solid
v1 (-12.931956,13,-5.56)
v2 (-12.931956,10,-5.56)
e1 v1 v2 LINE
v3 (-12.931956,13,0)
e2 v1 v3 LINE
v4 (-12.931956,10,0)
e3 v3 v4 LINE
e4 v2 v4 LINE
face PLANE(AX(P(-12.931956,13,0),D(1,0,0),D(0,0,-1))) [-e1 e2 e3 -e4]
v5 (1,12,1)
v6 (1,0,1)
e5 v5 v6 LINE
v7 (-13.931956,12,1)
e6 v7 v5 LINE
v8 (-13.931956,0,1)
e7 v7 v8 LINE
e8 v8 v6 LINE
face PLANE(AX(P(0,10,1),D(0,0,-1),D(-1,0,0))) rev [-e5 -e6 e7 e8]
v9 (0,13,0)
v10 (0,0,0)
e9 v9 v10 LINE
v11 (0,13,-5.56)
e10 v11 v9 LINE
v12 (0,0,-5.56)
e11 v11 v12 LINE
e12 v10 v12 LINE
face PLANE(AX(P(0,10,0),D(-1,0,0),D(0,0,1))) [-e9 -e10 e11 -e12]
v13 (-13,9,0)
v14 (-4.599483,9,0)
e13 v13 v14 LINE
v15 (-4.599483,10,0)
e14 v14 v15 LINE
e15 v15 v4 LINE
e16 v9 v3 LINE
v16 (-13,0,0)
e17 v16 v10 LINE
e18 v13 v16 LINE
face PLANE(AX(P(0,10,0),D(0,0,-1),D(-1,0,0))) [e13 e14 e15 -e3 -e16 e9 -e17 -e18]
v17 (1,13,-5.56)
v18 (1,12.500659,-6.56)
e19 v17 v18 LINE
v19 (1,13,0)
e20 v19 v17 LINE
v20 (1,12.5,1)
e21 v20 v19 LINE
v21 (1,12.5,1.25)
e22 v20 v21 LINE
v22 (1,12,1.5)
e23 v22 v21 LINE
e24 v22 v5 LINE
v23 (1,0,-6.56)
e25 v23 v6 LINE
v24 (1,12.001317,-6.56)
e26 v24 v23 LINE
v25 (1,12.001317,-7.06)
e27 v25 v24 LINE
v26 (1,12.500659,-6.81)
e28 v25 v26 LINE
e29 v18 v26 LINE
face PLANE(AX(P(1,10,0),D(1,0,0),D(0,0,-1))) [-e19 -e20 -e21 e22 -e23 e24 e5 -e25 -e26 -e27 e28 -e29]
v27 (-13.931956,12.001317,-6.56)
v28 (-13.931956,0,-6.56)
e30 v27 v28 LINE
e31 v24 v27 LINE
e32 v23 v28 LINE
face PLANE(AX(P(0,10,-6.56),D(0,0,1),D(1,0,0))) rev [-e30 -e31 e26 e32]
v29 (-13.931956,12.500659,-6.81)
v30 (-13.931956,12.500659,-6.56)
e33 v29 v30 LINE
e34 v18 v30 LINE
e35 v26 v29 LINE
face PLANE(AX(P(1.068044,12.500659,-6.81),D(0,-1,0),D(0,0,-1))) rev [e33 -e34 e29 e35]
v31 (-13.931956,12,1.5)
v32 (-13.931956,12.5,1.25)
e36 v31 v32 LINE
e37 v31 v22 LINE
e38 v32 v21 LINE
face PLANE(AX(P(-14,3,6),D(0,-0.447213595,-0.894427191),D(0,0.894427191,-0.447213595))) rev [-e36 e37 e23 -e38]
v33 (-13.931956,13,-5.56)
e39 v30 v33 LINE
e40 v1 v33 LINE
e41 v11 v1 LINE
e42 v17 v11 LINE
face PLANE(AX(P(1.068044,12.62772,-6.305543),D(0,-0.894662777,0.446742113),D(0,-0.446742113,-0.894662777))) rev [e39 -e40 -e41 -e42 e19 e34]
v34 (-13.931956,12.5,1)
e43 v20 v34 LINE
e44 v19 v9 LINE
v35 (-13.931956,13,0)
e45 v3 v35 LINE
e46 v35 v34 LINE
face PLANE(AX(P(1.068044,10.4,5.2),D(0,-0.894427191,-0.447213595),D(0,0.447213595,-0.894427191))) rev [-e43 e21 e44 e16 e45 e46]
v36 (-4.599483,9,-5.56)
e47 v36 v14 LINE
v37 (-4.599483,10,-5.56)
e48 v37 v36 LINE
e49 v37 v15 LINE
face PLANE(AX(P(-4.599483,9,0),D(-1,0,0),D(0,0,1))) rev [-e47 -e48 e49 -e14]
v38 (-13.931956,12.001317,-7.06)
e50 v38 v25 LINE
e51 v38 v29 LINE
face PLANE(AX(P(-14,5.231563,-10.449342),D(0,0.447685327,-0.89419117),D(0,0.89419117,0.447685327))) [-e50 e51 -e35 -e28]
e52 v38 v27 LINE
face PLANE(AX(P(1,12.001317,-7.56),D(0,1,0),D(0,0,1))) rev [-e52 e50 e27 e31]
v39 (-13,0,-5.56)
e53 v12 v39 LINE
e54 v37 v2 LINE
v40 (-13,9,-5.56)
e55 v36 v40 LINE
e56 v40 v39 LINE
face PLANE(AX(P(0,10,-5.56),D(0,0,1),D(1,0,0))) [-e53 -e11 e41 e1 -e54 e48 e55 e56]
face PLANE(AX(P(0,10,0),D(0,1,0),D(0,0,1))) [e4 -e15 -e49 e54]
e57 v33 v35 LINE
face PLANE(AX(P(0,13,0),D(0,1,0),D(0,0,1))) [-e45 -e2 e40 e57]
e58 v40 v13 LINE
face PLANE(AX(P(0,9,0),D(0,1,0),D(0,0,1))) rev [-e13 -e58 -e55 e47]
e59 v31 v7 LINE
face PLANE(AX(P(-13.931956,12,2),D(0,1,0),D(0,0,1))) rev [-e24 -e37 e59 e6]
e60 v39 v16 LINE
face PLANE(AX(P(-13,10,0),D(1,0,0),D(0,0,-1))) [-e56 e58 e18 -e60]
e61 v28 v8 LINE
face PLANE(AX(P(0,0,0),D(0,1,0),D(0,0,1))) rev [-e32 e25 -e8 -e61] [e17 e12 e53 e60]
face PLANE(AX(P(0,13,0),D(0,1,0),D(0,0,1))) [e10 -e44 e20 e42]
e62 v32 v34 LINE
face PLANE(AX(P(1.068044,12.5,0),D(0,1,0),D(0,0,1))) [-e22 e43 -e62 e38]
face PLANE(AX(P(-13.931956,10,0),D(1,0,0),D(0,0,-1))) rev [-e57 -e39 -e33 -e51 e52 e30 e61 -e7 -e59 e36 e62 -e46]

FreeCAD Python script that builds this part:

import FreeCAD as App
import Part
import Sketcher
Q = App.Units.Quantity

doc = App.newDocument("Part")
params = doc.addObject("Spreadsheet::Sheet", "Params")
for row, (alias, value) in enumerate([
    ("sketch1_width", "13 mm"),
    ("sketch1_height", "7.56 mm"),
    ("pad1_length", "10 mm"),
    ("sketch2_height", "7.56 mm"),
    ("pad2_length", "1 mm"),
    ("sketch3_height", "7.56 mm"),
    ("pad3_length", "3 mm"),
    ("sketch4_height", "1 mm"),
    ("pad4_length", "1 mm"),
    ("pad5_length", "1 mm"),
    ("sketch6_width", "1 mm"),
    ("pocket1_length", "15 mm"),
    ("sketch7_height", "0.5 mm"),
    ("pocket2_length", "15 mm"),
    ("sketch8_height", "1 mm"),
    ("sketch8_height2", "0.25 mm"),
    ("pocket3_length", "15 mm"),
], start=1):
    params.set(f"A{row}", alias)
    params.set(f"B{row}", "=" + value)
    params.setAlias(f"B{row}", alias)

body = doc.addObject("PartDesign::Body", "Body")

# Sketch on XZ plane
sketch1 = body.newObject("Sketcher::SketchObject", "Sketch")
sketch1.AttachmentSupport = (doc.getObject("XZ_Plane"), [""])
sketch1.MapMode = "FlatFace"
sketch1.addGeometry([
    Part.LineSegment(App.Vector(-14, -7, 0), App.Vector(-14, 1, 0)),  # 0
    Part.LineSegment(App.Vector(-14, 1, 0), App.Vector(1, 1, 0)),  # 1
    Part.LineSegment(App.Vector(1, 1, 0), App.Vector(1, -7, 0)),  # 2
    Part.LineSegment(App.Vector(1, -7, 0), App.Vector(-14, -7, 0)),  # 3
    Part.LineSegment(App.Vector(-13, 0, 0), App.Vector(-13, -6, 0)),  # 4
    Part.LineSegment(App.Vector(-13, -6, 0), App.Vector(0, -6, 0)),  # 5
    Part.LineSegment(App.Vector(0, -6, 0), App.Vector(0, 0, 0)),  # 6
    Part.LineSegment(App.Vector(0, 0, 0), App.Vector(-13, 0, 0)),  # 7
], False)
sketch1.addConstraint([
    Sketcher.Constraint("Coincident", 0, 2, 1, 1),
    Sketcher.Constraint("Coincident", 1, 2, 2, 1),
    Sketcher.Constraint("Coincident", 2, 2, 3, 1),
    Sketcher.Constraint("Coincident", 3, 2, 0, 1),
    Sketcher.Constraint("Coincident", 4, 2, 5, 1),
    Sketcher.Constraint("Coincident", 5, 2, 6, 1),
    Sketcher.Constraint("Coincident", 6, 2, 7, 1),
    Sketcher.Constraint("Coincident", 7, 2, 4, 1),
    Sketcher.Constraint("Vertical", 0),
    Sketcher.Constraint("Horizontal", 1),
    Sketcher.Constraint("Vertical", 2),
    Sketcher.Constraint("Horizontal", 3),
    Sketcher.Constraint("Vertical", 4),
    Sketcher.Constraint("Horizontal", 5),
    Sketcher.Constraint("Vertical", 6),
    Sketcher.Constraint("Horizontal", 7),
    Sketcher.Constraint("Coincident", 6, 2, -1, 1),
    Sketcher.Constraint("DistanceX", 5, 1, 5, 2, 13.0),
    Sketcher.Constraint("DistanceY", -1, 1, 0, 2, 1.0),
    Sketcher.Constraint("DistanceX", -1, 1, 1, 2, 1.0),
    Sketcher.Constraint("DistanceY", 3, 2, 4, 2, 1.0),
    Sketcher.Constraint("DistanceY", 0, 1, 0, 2, 7.56),
    Sketcher.Constraint("DistanceX", 1, 1, 1, 2, 14.931956),
])
sketch1.setExpression("Constraints[17]", "Params.sketch1_width")
sketch1.setExpression("Constraints[21]", "Params.sketch1_height")
pad1 = body.newObject("PartDesign::Pad", "Pad")
pad1.Profile = sketch1
pad1.setExpression("Length", "Params.pad1_length")
pad1.Reversed = True

# Sketch on XZ plane
sketch2 = body.newObject("Sketcher::SketchObject", "Sketch001")
sketch2.AttachmentSupport = (doc.getObject("XZ_Plane"), [""])
sketch2.MapMode = "FlatFace"
sketch2.AttachmentOffset = App.Placement(App.Vector(0, 0, -10), App.Rotation())
sketch2.addGeometry([
    Part.LineSegment(App.Vector(-14, -7, 0), App.Vector(-14, 1, 0)),
    Part.LineSegment(App.Vector(-14, 1, 0), App.Vector(-5, 1, 0)),
    Part.LineSegment(App.Vector(-5, 1, 0), App.Vector(-5, -7, 0)),
    Part.LineSegment(App.Vector(-5, -7, 0), App.Vector(-14, -7, 0)),
], False)
sketch2.addConstraint([
    Sketcher.Constraint("Coincident", 0, 2, 1, 1),
    Sketcher.Constraint("Coincident", 1, 2, 2, 1),
    Sketcher.Constraint("Coincident", 2, 2, 3, 1),
    Sketcher.Constraint("Coincident", 3, 2, 0, 1),
    Sketcher.Constraint("Vertical", 0),
    Sketcher.Constraint("Horizontal", 1),
    Sketcher.Constraint("Vertical", 2),
    Sketcher.Constraint("Horizontal", 3),
    Sketcher.Constraint("DistanceY", -1, 1, 0, 2, 1.0),
    Sketcher.Constraint("DistanceY", 0, 1, 0, 2, 7.56),
    Sketcher.Constraint("DistanceX", 1, 1, 1, 2, 9.332472),
    Sketcher.Constraint("DistanceX", 0, 2, -1, 1, 13.931956),
])
sketch2.setExpression("Constraints[9]", "Params.sketch2_height")
pad2 = body.newObject("PartDesign::Pad", "Pad001")
pad2.Profile = sketch2
pad2.setExpression("Length", "Params.pad2_length")

# Sketch on XZ plane
sketch3 = body.newObject("Sketcher::SketchObject", "Sketch002")
sketch3.AttachmentSupport = (doc.getObject("XZ_Plane"), [""])
sketch3.MapMode = "FlatFace"
sketch3.AttachmentOffset = App.Placement(App.Vector(0, 0, -10), App.Rotation())
sketch3.addGeometry([
    Part.LineSegment(App.Vector(1, -7, 0), App.Vector(-14, -7, 0)),  # 0
    Part.LineSegment(App.Vector(-14, -7, 0), App.Vector(-14, 1, 0)),  # 1
    Part.LineSegment(App.Vector(-14, 1, 0), App.Vector(1, 1, 0)),  # 2
    Part.LineSegment(App.Vector(1, 1, 0), App.Vector(1, -7, 0)),  # 3
    Part.LineSegment(App.Vector(-13, -6, 0), App.Vector(0, -6, 0)),  # 4
    Part.LineSegment(App.Vector(0, -6, 0), App.Vector(0, 0, 0)),  # 5
    Part.LineSegment(App.Vector(0, 0, 0), App.Vector(-13, 0, 0)),  # 6
    Part.LineSegment(App.Vector(-13, 0, 0), App.Vector(-13, -6, 0)),  # 7
], False)
sketch3.addConstraint([
    Sketcher.Constraint("Coincident", 0, 2, 1, 1),
    Sketcher.Constraint("Coincident", 1, 2, 2, 1),
    Sketcher.Constraint("Coincident", 2, 2, 3, 1),
    Sketcher.Constraint("Coincident", 3, 2, 0, 1),
    Sketcher.Constraint("Coincident", 4, 2, 5, 1),
    Sketcher.Constraint("Coincident", 5, 2, 6, 1),
    Sketcher.Constraint("Coincident", 6, 2, 7, 1),
    Sketcher.Constraint("Coincident", 7, 2, 4, 1),
    Sketcher.Constraint("Horizontal", 0),
    Sketcher.Constraint("Vertical", 1),
    Sketcher.Constraint("Horizontal", 2),
    Sketcher.Constraint("Vertical", 3),
    Sketcher.Constraint("Horizontal", 4),
    Sketcher.Constraint("Vertical", 5),
    Sketcher.Constraint("Horizontal", 6),
    Sketcher.Constraint("Vertical", 7),
    Sketcher.Constraint("Coincident", 5, 2, -1, 1),
    Sketcher.Constraint("DistanceY", -1, 1, 1, 2, 1.0),
    Sketcher.Constraint("DistanceX", -1, 1, 2, 2, 1.0),
    Sketcher.Constraint("DistanceY", 3, 2, 4, 2, 1.0),
    Sketcher.Constraint("DistanceX", 1, 2, 6, 2, 1.0),
    Sketcher.Constraint("DistanceY", 1, 1, 1, 2, 7.56),
    Sketcher.Constraint("DistanceX", 0, 2, 0, 1, 14.931956),
])
sketch3.setExpression("Constraints[21]", "Params.sketch3_height")
pad3 = body.newObject("PartDesign::Pad", "Pad002")
pad3.Profile = sketch3
pad3.setExpression("Length", "Params.pad3_length")
pad3.Reversed = True

# Sketch on XY plane
sketch4 = body.newObject("Sketcher::SketchObject", "Sketch003")
sketch4.AttachmentSupport = (doc.getObject("XY_Plane"), [""])
sketch4.MapMode = "FlatFace"
sketch4.AttachmentOffset = App.Placement(App.Vector(0, 0, 1), App.Rotation())
sketch4.addGeometry([
    Part.LineSegment(App.Vector(-13.9, 13, 0), App.Vector(-13.9, 12, 0)),
    Part.LineSegment(App.Vector(-13.9, 12, 0), App.Vector(1, 12, 0)),
    Part.LineSegment(App.Vector(1, 12, 0), App.Vector(1, 13, 0)),
    Part.LineSegment(App.Vector(1, 13, 0), App.Vector(-13.9, 13, 0)),
], False)
sketch4.addConstraint([
    Sketcher.Constraint("Coincident", 0, 2, 1, 1),
    Sketcher.Constraint("Coincident", 1, 2, 2, 1),
    Sketcher.Constraint("Coincident", 2, 2, 3, 1),
    Sketcher.Constraint("Coincident", 3, 2, 0, 1),
    Sketcher.Constraint("Vertical", 0),
    Sketcher.Constraint("Horizontal", 1),
    Sketcher.Constraint("Vertical", 2),
    Sketcher.Constraint("Horizontal", 3),
    Sketcher.Constraint("DistanceY", 0, 2, 0, 1, 1.0),
    Sketcher.Constraint("DistanceY", -1, 1, 0, 2, 12.0),
    Sketcher.Constraint("DistanceX", -1, 1, 1, 2, 1.0),
    Sketcher.Constraint("DistanceX", 1, 1, 1, 2, 14.931956),
])
sketch4.setExpression("Constraints[8]", "Params.sketch4_height")
pad4 = body.newObject("PartDesign::Pad", "Pad003")
pad4.Profile = sketch4
pad4.setExpression("Length", "Params.pad4_length")

# Sketch on XY plane
sketch5 = body.newObject("Sketcher::SketchObject", "Sketch004")
sketch5.AttachmentSupport = (doc.getObject("XY_Plane"), [""])
sketch5.MapMode = "FlatFace"
sketch5.AttachmentOffset = App.Placement(App.Vector(0, 0, -6.56), App.Rotation())
sketch5.addGeometry([
    Part.LineSegment(App.Vector(1, 13, 0), App.Vector(1, 12, 0)),
    Part.LineSegment(App.Vector(1, 12, 0), App.Vector(-13.9, 12, 0)),
    Part.LineSegment(App.Vector(-13.9, 12, 0), App.Vector(-13.9, 13, 0)),
    Part.LineSegment(App.Vector(-13.9, 13, 0), App.Vector(1, 13, 0)),
], False)
sketch5.addConstraint([
    Sketcher.Constraint("Coincident", 0, 2, 1, 1),
    Sketcher.Constraint("Coincident", 1, 2, 2, 1),
    Sketcher.Constraint("Coincident", 2, 2, 3, 1),
    Sketcher.Constraint("Coincident", 3, 2, 0, 1),
    Sketcher.Constraint("Vertical", 0),
    Sketcher.Constraint("Horizontal", 1),
    Sketcher.Constraint("Vertical", 2),
    Sketcher.Constraint("Horizontal", 3),
    Sketcher.Constraint("DistanceX", -1, 1, 0, 2, 1.0),
    Sketcher.Constraint("DistanceY", -1, 1, 2, 2, 13.0),
    Sketcher.Constraint("DistanceX", 1, 2, 1, 1, 14.931956),
    Sketcher.Constraint("DistanceY", 0, 2, 0, 1, 0.998683),
])
pad5 = body.newObject("PartDesign::Pad", "Pad004")
pad5.Profile = sketch5
pad5.setExpression("Length", "Params.pad5_length")
pad5.Reversed = True

# Sketch on YZ plane
sketch6 = body.newObject("Sketcher::SketchObject", "Sketch005")
sketch6.AttachmentSupport = (doc.getObject("YZ_Plane"), [""])
sketch6.MapMode = "FlatFace"
sketch6.AttachmentOffset = App.Placement(App.Vector(0, 0, -13.931956), App.Rotation())
sketch6.addGeometry([
    Part.LineSegment(App.Vector(12, -7.6, 0), App.Vector(13, -6.6, 0)),  # 0
    Part.LineSegment(App.Vector(13, -6.6, 0), App.Vector(13, -7.6, 0)),  # 1
    Part.LineSegment(App.Vector(13, -7.6, 0), App.Vector(12, -7.6, 0)),  # 2
    Part.LineSegment(App.Vector(13, 1, 0), App.Vector(12, 2, 0)),  # 3
    Part.LineSegment(App.Vector(12, 2, 0), App.Vector(13, 2, 0)),  # 4
    Part.LineSegment(App.Vector(13, 2, 0), App.Vector(13, 1, 0)),  # 5
], False)
sketch6.addConstraint([
    Sketcher.Constraint("Coincident", 0, 2, 1, 1),
    Sketcher.Constraint("Coincident", 1, 2, 2, 1),
    Sketcher.Constraint("Coincident", 2, 2, 0, 1),
    Sketcher.Constraint("Coincident", 3, 2, 4, 1),
    Sketcher.Constraint("Coincident", 4, 2, 5, 1),
    Sketcher.Constraint("Coincident", 5, 2, 3, 1),
    Sketcher.Constraint("Vertical", 1),
    Sketcher.Constraint("Horizontal", 2),
    Sketcher.Constraint("Horizontal", 4),
    Sketcher.Constraint("Vertical", 5),
    Sketcher.Constraint("Vertical", 1, 2, 4, 2),
    Sketcher.Constraint("Equal", 4, 1),
    Sketcher.Constraint("Equal", 1, 5),
    Sketcher.Constraint("DistanceX", 4, 1, 4, 2, 1.0),
    Sketcher.Constraint("DistanceX", -1, 1, 0, 2, 13.0),
    Sketcher.Constraint("DistanceY", -1, 1, 3, 2, 2.0),
    Sketcher.Constraint("DistanceY", 0, 2, -1, 1, 6.56),
    Sketcher.Constraint("DistanceX", 2, 2, 2, 1, 0.998683),
])
sketch6.setExpression("Constraints[13]", "Params.sketch6_width")
pocket1 = body.newObject("PartDesign::Pocket", "Pocket")
pocket1.Profile = sketch6
pocket1.setExpression("Length", "Params.pocket1_length")
pocket1.Reversed = True

# Sketch on YZ plane
sketch7 = body.newObject("Sketcher::SketchObject", "Sketch006")
sketch7.AttachmentSupport = (doc.getObject("YZ_Plane"), [""])
sketch7.MapMode = "FlatFace"
sketch7.AttachmentOffset = App.Placement(App.Vector(0, 0, 1), App.Rotation())
sketch7.addGeometry([
    Part.LineSegment(App.Vector(12, 1.5, 0), App.Vector(13, 1, 0)),  # 0
    Part.LineSegment(App.Vector(13, 1, 0), App.Vector(12, 2, 0)),  # 1
    Part.LineSegment(App.Vector(12, 2, 0), App.Vector(12, 1.5, 0)),  # 2
    Part.LineSegment(App.Vector(12, -7.6, 0), App.Vector(13, -6.6, 0)),  # 3
    Part.LineSegment(App.Vector(13, -6.6, 0), App.Vector(12, -7.1, 0)),  # 4
    Part.LineSegment(App.Vector(12, -7.1, 0), App.Vector(12, -7.6, 0)),  # 5
], False)
sketch7.addConstraint([
    Sketcher.Constraint("Coincident", 0, 2, 1, 1),
    Sketcher.Constraint("Coincident", 1, 2, 2, 1),
    Sketcher.Constraint("Coincident", 2, 2, 0, 1),
    Sketcher.Constraint("Coincident", 3, 2, 4, 1),
    Sketcher.Constraint("Coincident", 4, 2, 5, 1),
    Sketcher.Constraint("Coincident", 5, 2, 3, 1),
    Sketcher.Constraint("Vertical", 2),
    Sketcher.Constraint("Vertical", 5),
    Sketcher.Constraint("Vertical", 0, 2, 3, 2),
    Sketcher.Constraint("Equal", 2, 5),
    Sketcher.Constraint("Angle", 1, Q("135 deg")),
    Sketcher.Constraint("DistanceY", 2, 2, 2, 1, 0.5),
    Sketcher.Constraint("DistanceX", -1, 1, 0, 2, 13.0),
    Sketcher.Constraint("DistanceY", -1, 1, 0, 2, 1.0),
    Sketcher.Constraint("DistanceX", -1, 1, 1, 2, 12.0),
    Sketcher.Constraint("DistanceY", 5, 2, 3, 2, 1.0),
    Sketcher.Constraint("DistanceY", 3, 2, -1, 1, 6.56),
    Sketcher.Constraint("Distance", 3, 1.413282),
])
sketch7.setExpression("Constraints[11]", "Params.sketch7_height")
pocket2 = body.newObject("PartDesign::Pocket", "Pocket001")
pocket2.Profile = sketch7
pocket2.setExpression("Length", "Params.pocket2_length")

# Sketch on YZ plane
sketch8 = body.newObject("Sketcher::SketchObject", "Sketch007")
sketch8.AttachmentSupport = (doc.getObject("YZ_Plane"), [""])
sketch8.MapMode = "FlatFace"
sketch8.AttachmentOffset = App.Placement(App.Vector(0, 0, -13.931956), App.Rotation())
sketch8.addGeometry([
    Part.LineSegment(App.Vector(12.5, -6.81, 0), App.Vector(12.5, -6.56, 0)),  # 0
    Part.LineSegment(App.Vector(12.5, -6.56, 0), App.Vector(13, -5.56, 0)),  # 1
    Part.LineSegment(App.Vector(13, -5.56, 0), App.Vector(13, -6.56, 0)),  # 2
    Part.LineSegment(App.Vector(13, -6.56, 0), App.Vector(12.5, -6.81, 0)),  # 3
    Part.LineSegment(App.Vector(12.5, 1.25, 0), App.Vector(13, 1, 0)),  # 4
    Part.LineSegment(App.Vector(13, 1, 0), App.Vector(13, 0, 0)),  # 5
    Part.LineSegment(App.Vector(13, 0, 0), App.Vector(12.5, 1, 0)),  # 6
    Part.LineSegment(App.Vector(12.5, 1, 0), App.Vector(12.5, 1.25, 0)),  # 7
], False)
sketch8.addConstraint([
    Sketcher.Constraint("Coincident", 0, 2, 1, 1),
    Sketcher.Constraint("Coincident", 1, 2, 2, 1),
    Sketcher.Constraint("Coincident", 2, 2, 3, 1),
    Sketcher.Constraint("Coincident", 3, 2, 0, 1),
    Sketcher.Constraint("Coincident", 4, 2, 5, 1),
    Sketcher.Constraint("Coincident", 5, 2, 6, 1),
    Sketcher.Constraint("Coincident", 6, 2, 7, 1),
    Sketcher.Constraint("Coincident", 7, 2, 4, 1),
    Sketcher.Constraint("Vertical", 0),
    Sketcher.Constraint("Vertical", 2),
    Sketcher.Constraint("Vertical", 5),
    Sketcher.Constraint("Vertical", 7),
    Sketcher.Constraint("PointOnObject", 5, 2, -1),
    Sketcher.Constraint("Horizontal", 0, 2, 2, 2),
    Sketcher.Constraint("Horizontal", 4, 2, 6, 2),
    Sketcher.Constraint("Vertical", 2, 2, 4, 2),
    Sketcher.Constraint("Equal", 2, 5),
    Sketcher.Constraint("Equal", 0, 7),
    Sketcher.Constraint("DistanceY", 2, 2, 2, 1, 1.0),
    Sketcher.Constraint("DistanceX", -1, 1, 1, 2, 13.0),
    Sketcher.Constraint("DistanceY", 0, 1, 0, 2, 0.25),
    Sketcher.Constraint("DistanceX", -1, 1, 6, 2, 12.5),
    Sketcher.Constraint("DistanceY", 0, 2, -1, 1, 6.56),
    Sketcher.Constraint("Distance", 1, 1.11774),
])
sketch8.setExpression("Constraints[18]", "Params.sketch8_height")
sketch8.setExpression("Constraints[20]", "Params.sketch8_height2")
pocket3 = body.newObject("PartDesign::Pocket", "Pocket002")
pocket3.Profile = sketch8
pocket3.setExpression("Length", "Params.pocket3_length")
pocket3.Reversed = True

doc.recompute()
